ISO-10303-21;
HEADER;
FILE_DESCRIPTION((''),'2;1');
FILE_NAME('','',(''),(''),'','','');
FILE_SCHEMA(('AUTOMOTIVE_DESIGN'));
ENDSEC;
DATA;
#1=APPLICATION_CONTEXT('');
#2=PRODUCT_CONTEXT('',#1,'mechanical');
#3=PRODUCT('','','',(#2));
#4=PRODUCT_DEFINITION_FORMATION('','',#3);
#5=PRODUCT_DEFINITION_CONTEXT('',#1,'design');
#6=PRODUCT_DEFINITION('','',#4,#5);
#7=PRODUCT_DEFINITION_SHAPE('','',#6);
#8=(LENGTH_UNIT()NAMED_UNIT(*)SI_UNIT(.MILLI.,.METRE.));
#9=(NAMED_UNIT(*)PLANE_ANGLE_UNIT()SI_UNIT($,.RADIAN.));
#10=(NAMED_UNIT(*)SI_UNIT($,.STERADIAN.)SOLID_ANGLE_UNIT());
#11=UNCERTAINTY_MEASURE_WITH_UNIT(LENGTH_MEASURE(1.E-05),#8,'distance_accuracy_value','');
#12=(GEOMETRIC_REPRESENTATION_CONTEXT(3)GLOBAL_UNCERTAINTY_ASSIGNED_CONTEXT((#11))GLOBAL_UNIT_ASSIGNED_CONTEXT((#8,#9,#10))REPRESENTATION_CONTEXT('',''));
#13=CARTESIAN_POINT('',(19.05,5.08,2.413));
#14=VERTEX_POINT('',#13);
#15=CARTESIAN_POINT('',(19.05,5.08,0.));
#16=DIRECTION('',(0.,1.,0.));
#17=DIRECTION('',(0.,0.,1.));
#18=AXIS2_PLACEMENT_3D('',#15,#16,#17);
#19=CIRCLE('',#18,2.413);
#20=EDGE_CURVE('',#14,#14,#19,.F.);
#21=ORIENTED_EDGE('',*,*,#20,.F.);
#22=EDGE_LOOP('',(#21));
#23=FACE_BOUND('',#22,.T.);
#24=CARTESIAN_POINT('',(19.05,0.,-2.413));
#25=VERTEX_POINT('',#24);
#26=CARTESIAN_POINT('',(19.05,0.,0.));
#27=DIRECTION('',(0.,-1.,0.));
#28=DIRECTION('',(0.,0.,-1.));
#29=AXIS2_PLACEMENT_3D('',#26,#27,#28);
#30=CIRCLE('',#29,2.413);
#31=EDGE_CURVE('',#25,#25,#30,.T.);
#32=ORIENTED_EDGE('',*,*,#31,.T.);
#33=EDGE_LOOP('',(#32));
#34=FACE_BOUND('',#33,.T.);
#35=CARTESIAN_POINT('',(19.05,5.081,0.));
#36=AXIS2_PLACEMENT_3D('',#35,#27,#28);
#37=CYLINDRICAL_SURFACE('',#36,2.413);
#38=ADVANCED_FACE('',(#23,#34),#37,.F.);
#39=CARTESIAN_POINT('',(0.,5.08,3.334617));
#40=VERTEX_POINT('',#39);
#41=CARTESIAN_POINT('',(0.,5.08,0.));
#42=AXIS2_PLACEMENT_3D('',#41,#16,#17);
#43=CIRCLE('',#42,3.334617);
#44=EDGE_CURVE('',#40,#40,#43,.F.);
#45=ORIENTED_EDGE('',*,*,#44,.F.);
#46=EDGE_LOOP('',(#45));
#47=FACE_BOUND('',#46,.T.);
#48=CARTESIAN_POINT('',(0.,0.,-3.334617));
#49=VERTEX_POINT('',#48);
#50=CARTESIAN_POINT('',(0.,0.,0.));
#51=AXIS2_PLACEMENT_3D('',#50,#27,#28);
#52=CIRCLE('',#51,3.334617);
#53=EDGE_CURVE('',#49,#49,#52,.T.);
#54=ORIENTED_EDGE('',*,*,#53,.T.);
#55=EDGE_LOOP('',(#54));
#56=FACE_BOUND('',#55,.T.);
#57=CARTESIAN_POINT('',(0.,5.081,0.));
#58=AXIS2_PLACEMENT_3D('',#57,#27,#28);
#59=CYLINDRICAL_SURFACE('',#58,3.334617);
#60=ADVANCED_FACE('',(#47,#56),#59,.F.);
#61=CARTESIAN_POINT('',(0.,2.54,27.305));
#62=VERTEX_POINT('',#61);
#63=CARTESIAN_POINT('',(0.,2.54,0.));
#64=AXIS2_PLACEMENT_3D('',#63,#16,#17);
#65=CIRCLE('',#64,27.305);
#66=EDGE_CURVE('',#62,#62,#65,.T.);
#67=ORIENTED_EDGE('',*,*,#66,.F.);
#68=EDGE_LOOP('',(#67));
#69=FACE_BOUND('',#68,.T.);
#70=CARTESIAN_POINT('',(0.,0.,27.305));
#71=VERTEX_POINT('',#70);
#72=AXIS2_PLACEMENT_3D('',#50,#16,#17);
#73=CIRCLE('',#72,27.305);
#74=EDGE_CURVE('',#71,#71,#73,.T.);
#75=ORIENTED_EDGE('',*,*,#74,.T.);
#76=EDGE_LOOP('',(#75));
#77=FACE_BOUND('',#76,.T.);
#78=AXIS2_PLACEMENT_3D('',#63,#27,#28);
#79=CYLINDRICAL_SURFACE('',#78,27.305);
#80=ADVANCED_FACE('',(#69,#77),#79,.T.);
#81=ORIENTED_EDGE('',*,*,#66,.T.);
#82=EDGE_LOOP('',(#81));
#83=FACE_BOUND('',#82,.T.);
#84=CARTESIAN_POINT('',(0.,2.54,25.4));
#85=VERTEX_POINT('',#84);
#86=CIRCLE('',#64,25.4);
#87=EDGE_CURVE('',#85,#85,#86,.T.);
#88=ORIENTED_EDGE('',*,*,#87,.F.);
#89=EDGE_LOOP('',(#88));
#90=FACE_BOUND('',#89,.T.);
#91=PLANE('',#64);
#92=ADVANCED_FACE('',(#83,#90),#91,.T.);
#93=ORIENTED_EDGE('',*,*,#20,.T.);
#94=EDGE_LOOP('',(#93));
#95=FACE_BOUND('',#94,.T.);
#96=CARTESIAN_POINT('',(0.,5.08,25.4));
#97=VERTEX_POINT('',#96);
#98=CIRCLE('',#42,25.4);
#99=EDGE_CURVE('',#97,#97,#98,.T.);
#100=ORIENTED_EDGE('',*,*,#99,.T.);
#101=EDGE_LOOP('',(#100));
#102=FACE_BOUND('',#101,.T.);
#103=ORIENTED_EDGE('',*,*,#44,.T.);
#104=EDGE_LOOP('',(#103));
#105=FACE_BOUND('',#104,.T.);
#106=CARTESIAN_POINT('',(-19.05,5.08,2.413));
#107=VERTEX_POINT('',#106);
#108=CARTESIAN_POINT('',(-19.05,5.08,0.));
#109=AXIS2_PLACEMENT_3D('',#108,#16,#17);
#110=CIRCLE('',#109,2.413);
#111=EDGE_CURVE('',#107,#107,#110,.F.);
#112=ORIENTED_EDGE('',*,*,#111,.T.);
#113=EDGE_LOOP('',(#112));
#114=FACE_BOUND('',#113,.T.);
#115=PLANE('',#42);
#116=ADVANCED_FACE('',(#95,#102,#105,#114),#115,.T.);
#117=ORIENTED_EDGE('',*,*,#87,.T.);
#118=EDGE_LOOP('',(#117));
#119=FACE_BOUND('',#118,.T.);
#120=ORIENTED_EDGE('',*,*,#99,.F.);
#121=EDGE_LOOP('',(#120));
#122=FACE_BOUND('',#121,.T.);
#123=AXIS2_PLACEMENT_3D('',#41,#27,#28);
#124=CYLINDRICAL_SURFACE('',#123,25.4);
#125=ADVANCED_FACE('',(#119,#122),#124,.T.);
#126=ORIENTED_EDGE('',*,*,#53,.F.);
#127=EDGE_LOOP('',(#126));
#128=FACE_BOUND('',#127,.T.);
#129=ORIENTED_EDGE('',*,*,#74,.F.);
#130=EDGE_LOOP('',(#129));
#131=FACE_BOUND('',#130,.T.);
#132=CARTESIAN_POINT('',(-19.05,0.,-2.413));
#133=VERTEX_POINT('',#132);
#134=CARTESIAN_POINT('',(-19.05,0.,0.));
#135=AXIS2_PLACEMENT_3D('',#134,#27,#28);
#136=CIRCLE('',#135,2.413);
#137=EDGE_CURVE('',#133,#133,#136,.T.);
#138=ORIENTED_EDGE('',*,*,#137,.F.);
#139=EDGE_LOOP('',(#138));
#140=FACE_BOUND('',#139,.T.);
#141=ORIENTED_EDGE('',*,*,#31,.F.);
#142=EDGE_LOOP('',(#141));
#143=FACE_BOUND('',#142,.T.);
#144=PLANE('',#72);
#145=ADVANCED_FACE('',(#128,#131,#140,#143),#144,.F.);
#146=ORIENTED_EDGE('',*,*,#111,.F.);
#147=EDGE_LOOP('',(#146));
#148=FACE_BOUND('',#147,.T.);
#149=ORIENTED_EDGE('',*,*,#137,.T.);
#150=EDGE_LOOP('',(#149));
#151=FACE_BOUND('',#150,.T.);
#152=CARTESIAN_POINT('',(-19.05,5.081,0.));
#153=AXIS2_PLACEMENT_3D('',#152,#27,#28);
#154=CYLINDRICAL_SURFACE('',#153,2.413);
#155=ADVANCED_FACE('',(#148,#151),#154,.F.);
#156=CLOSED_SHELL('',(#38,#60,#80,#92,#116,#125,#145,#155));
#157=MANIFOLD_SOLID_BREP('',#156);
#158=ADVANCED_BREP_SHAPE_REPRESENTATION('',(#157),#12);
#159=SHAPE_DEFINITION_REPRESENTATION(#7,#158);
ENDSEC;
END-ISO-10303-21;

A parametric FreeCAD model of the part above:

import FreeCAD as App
import Part
import Sketcher

V = App.Vector
Q = App.Units.Quantity

doc = App.newDocument("Part")
body = doc.addObject("PartDesign::Body", "Body")

# Sketch on XZ plane
sketch1 = body.newObject("Sketcher::SketchObject", "Sketch")
sketch1.AttachmentSupport = (doc.getObject("XZ_Plane"), [""])
sketch1.MapMode = "FlatFace"
sketch1.addGeometry(Part.Circle(V(0, 0, 0), V(0, 0, 1), 27.305), False)
sketch1.addConstraint(Sketcher.Constraint("Coincident", 0, 3, -1, 1))
sketch1.addConstraint(Sketcher.Constraint("Diameter", 0, Q("2.15 in")))
pad1 = body.newObject("PartDesign::Pad", "Pad")
pad1.Profile = sketch1
pad1.Length = Q("0.1 in")
pad1.Reversed = True

# Sketch on XZ plane
sketch2 = body.newObject("Sketcher::SketchObject", "Sketch001")
sketch2.AttachmentSupport = (doc.getObject("XZ_Plane"), [""])
sketch2.MapMode = "FlatFace"
sketch2.AttachmentOffset = App.Placement(V(0, 0, -0.1 * 25.4), App.Rotation())
sketch2.addGeometry(Part.Circle(V(0, 0, 0), V(0, 0, 1), 25.4), False)
sketch2.addConstraint(Sketcher.Constraint("Coincident", 0, 3, -1, 1))
sketch2.addConstraint(Sketcher.Constraint("Diameter", 0, Q("2 in")))
pad2 = body.newObject("PartDesign::Pad", "Pad001")
pad2.Profile = sketch2
pad2.Length = Q("0.1 in")
pad2.Reversed = True

# Sketch on XZ plane
sketch3 = body.newObject("Sketcher::SketchObject", "Sketch002")
sketch3.AttachmentSupport = (doc.getObject("XZ_Plane"), [""])
sketch3.MapMode = "FlatFace"
sketch3.addGeometry(Part.Circle(V(0, 0, 0), V(0, 0, 1), 3.334617), False)
sketch3.addConstraint(Sketcher.Constraint("Coincident", 0, 3, -1, 1))
sketch3.addConstraint(Sketcher.Constraint("Diameter", 0, 6.669234))
pocket1 = body.newObject("PartDesign::Pocket", "Pocket")
pocket1.Profile = sketch3
pocket1.Type = "UpToFirst"

# Sketch on XZ plane
sketch4 = body.newObject("Sketcher::SketchObject", "Sketch003")
sketch4.AttachmentSupport = (doc.getObject("XZ_Plane"), [""])
sketch4.MapMode = "FlatFace"
sketch4.addGeometry(Part.Circle(V(-19.05, 0, 0), V(0, 0, 1), 2.413), False)
sketch4.addConstraint(Sketcher.Constraint("PointOnObject", 0, 3, -1))
sketch4.addConstraint(Sketcher.Constraint("Diameter", 0, Q("0.19 in")))
sketch4.addConstraint(Sketcher.Constraint("DistanceX", 0, 3, -1, 1, Q("0.75 in")))
pocket2 = body.newObject("PartDesign::Pocket", "Pocket001")
pocket2.Profile = sketch4
pocket2.Type = "UpToFirst"

# Sketch on XZ plane
sketch5 = body.newObject("Sketcher::SketchObject", "Sketch004")
sketch5.AttachmentSupport = (doc.getObject("XZ_Plane"), [""])
sketch5.MapMode = "FlatFace"
sketch5.addGeometry(Part.Circle(V(19.05, 0, 0), V(0, 0, 1), 2.413), False)
sketch5.addConstraint(Sketcher.Constraint("PointOnObject", 0, 3, -1))
sketch5.addConstraint(Sketcher.Constraint("Diameter", 0, Q("0.19 in")))
sketch5.addConstraint(Sketcher.Constraint("DistanceX", -1, 1, 0, 3, Q("0.75 in")))
pocket3 = body.newObject("PartDesign::Pocket", "Pocket002")
pocket3.Profile = sketch5
pocket3.Type = "UpToFirst"

doc.recompute()
